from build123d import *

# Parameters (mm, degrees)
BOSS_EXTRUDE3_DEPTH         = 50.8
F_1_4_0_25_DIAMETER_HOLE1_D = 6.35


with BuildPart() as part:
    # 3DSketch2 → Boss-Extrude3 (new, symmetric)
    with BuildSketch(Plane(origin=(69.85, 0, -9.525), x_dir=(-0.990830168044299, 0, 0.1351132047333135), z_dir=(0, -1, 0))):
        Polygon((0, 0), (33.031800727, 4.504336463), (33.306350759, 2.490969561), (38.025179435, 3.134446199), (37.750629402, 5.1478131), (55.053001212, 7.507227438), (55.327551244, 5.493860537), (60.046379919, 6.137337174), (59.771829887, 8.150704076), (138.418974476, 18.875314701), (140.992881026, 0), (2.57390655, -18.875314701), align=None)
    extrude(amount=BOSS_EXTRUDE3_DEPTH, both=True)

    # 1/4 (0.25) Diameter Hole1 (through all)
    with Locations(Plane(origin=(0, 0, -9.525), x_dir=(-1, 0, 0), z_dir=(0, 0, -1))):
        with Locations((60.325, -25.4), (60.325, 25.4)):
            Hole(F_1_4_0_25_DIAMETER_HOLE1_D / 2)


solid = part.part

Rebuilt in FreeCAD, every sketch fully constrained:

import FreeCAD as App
import Part
import Sketcher
from FreeCAD import Vector
Q = App.Units.Quantity

doc = App.newDocument("Part")
body = doc.addObject("PartDesign::Body", "Body")

# Sketch on XZ plane
sketch1 = body.newObject("Sketcher::SketchObject", "Sketch")
sketch1.AttachmentSupport = (doc.getObject("XZ_Plane"), [""])
sketch1.MapMode = "FlatFace"
sketch1.addGeometry([
    Part.LineSegment(Vector(36.5, -9.5, 0), Vector(69.8, -9.5, 0)),  # 0
    Part.LineSegment(Vector(69.8, -9.5, 0), Vector(69.9, 9.5, 0)),  # 1
    Part.LineSegment(Vector(69.9, 9.5, 0), Vector(-69.8, 9.5, 0)),  # 2
    Part.LineSegment(Vector(-69.8, 9.5, 0), Vector(-69.8, -9.5, 0)),  # 3
    Part.LineSegment(Vector(-69.8, -9.5, 0), Vector(9.5, -9.5, 0)),  # 4
    Part.LineSegment(Vector(9.5, -9.5, 0), Vector(9.5, -7.5, 0)),  # 5
    Part.LineSegment(Vector(9.5, -7.5, 0), Vector(14.3, -7.5, 0)),  # 6
    Part.LineSegment(Vector(14.3, -7.5, 0), Vector(14.3, -9.5, 0)),  # 7
    Part.LineSegment(Vector(14.3, -9.5, 0), Vector(31.8, -9.5, 0)),  # 8
    Part.LineSegment(Vector(31.8, -9.5, 0), Vector(31.8, -7.5, 0)),  # 9
    Part.LineSegment(Vector(31.8, -7.5, 0), Vector(36.5, -7.5, 0)),  # 10
    Part.LineSegment(Vector(36.5, -7.5, 0), Vector(36.5, -9.5, 0)),  # 11
], False)
sketch1.addConstraint([
    Sketcher.Constraint("Coincident", 0, 2, 1, 1),
    Sketcher.Constraint("Coincident", 1, 2, 2, 1),
    Sketcher.Constraint("Coincident", 2, 2, 3, 1),
    Sketcher.Constraint("Coincident", 3, 2, 4, 1),
    Sketcher.Constraint("Coincident", 4, 2, 5, 1),
    Sketcher.Constraint("Coincident", 5, 2, 6, 1),
    Sketcher.Constraint("Coincident", 6, 2, 7, 1),
    Sketcher.Constraint("Coincident", 7, 2, 8, 1),
    Sketcher.Constraint("Coincident", 8, 2, 9, 1),
    Sketcher.Constraint("Coincident", 9, 2, 10, 1),
    Sketcher.Constraint("Coincident", 10, 2, 11, 1),
    Sketcher.Constraint("Coincident", 11, 2, 0, 1),
    Sketcher.Constraint("Horizontal", 0),
    Sketcher.Constraint("Vertical", 1),
    Sketcher.Constraint("Horizontal", 2),
    Sketcher.Constraint("Vertical", 3),
    Sketcher.Constraint("Horizontal", 4),
    Sketcher.Constraint("Vertical", 5),
    Sketcher.Constraint("Horizontal", 6),
    Sketcher.Constraint("Vertical", 7),
    Sketcher.Constraint("Horizontal", 8),
    Sketcher.Constraint("Vertical", 9),
    Sketcher.Constraint("Horizontal", 10),
    Sketcher.Constraint("Vertical", 11),
    Sketcher.Constraint("Symmetric", 0, 2, 2, 2, -1, 1),
    Sketcher.Constraint("Horizontal", 0, 2, 3, 2),
    Sketcher.Constraint("Horizontal", 4, 2, 7, 2),
    Sketcher.Constraint("Horizontal", 6, 2, 9, 2),
    Sketcher.Constraint("Equal", 6, 10),
    Sketcher.Constraint("DistanceX", 2, 2, 2, 1, Q("5.5 in")),
    Sketcher.Constraint("DistanceY", 1, 1, 1, 2, Q("0.75 in")),
    Sketcher.Constraint("DistanceY", 5, 1, 5, 2, Q("0.08 in")),
    Sketcher.Constraint("DistanceX", 8, 2, 0, 2, Q("1.5 in")),
    Sketcher.Constraint("DistanceX", 0, 1, 0, 2, Q("1.3125 in")),
    Sketcher.Constraint("DistanceX", 4, 1, 4, 2, Q("3.125 in")),
])
pad1 = body.newObject("PartDesign::Pad", "Pad")
pad1.Profile = sketch1
pad1.Length = Q("4 in")
pad1.Midplane = True

# Sketch on XY plane
sketch2 = body.newObject("Sketcher::SketchObject", "Sketch001")
sketch2.AttachmentSupport = (doc.getObject("XY_Plane"), [""])
sketch2.MapMode = "FlatFace"
sketch2.AttachmentOffset = App.Placement(Vector(0, 0, -0.375 * 25.4), App.Rotation())
sketch2.addGeometry([
    Part.Circle(Vector(-60.3, -25.4, 0), Vector(0, 0, 1), 3.2),
    Part.Circle(Vector(-60.3, 25.4, 0), Vector(0, 0, 1), 3.2),
], False)
sketch2.addConstraint([
    Sketcher.Constraint("Equal", 0, 1),
    Sketcher.Constraint("Symmetric", 0, 3, 1, 3, -1),
    Sketcher.Constraint("Diameter", 0, Q("0.25 in")),
    Sketcher.Constraint("DistanceY", 0, 3, -1, 1, Q("1 in")),
    Sketcher.Constraint("DistanceX", 0, 3, -1, 1, Q("2.375 in")),
])
doc.recompute()
hole = body.newObject("PartDesign::Hole", "Hole")
hole.Profile = sketch2
hole.ThreadType = "None"
hole.Diameter = Q("0.25 in")
hole.DepthType = "ThroughAll"
hole.Reversed = True

doc.recompute()
